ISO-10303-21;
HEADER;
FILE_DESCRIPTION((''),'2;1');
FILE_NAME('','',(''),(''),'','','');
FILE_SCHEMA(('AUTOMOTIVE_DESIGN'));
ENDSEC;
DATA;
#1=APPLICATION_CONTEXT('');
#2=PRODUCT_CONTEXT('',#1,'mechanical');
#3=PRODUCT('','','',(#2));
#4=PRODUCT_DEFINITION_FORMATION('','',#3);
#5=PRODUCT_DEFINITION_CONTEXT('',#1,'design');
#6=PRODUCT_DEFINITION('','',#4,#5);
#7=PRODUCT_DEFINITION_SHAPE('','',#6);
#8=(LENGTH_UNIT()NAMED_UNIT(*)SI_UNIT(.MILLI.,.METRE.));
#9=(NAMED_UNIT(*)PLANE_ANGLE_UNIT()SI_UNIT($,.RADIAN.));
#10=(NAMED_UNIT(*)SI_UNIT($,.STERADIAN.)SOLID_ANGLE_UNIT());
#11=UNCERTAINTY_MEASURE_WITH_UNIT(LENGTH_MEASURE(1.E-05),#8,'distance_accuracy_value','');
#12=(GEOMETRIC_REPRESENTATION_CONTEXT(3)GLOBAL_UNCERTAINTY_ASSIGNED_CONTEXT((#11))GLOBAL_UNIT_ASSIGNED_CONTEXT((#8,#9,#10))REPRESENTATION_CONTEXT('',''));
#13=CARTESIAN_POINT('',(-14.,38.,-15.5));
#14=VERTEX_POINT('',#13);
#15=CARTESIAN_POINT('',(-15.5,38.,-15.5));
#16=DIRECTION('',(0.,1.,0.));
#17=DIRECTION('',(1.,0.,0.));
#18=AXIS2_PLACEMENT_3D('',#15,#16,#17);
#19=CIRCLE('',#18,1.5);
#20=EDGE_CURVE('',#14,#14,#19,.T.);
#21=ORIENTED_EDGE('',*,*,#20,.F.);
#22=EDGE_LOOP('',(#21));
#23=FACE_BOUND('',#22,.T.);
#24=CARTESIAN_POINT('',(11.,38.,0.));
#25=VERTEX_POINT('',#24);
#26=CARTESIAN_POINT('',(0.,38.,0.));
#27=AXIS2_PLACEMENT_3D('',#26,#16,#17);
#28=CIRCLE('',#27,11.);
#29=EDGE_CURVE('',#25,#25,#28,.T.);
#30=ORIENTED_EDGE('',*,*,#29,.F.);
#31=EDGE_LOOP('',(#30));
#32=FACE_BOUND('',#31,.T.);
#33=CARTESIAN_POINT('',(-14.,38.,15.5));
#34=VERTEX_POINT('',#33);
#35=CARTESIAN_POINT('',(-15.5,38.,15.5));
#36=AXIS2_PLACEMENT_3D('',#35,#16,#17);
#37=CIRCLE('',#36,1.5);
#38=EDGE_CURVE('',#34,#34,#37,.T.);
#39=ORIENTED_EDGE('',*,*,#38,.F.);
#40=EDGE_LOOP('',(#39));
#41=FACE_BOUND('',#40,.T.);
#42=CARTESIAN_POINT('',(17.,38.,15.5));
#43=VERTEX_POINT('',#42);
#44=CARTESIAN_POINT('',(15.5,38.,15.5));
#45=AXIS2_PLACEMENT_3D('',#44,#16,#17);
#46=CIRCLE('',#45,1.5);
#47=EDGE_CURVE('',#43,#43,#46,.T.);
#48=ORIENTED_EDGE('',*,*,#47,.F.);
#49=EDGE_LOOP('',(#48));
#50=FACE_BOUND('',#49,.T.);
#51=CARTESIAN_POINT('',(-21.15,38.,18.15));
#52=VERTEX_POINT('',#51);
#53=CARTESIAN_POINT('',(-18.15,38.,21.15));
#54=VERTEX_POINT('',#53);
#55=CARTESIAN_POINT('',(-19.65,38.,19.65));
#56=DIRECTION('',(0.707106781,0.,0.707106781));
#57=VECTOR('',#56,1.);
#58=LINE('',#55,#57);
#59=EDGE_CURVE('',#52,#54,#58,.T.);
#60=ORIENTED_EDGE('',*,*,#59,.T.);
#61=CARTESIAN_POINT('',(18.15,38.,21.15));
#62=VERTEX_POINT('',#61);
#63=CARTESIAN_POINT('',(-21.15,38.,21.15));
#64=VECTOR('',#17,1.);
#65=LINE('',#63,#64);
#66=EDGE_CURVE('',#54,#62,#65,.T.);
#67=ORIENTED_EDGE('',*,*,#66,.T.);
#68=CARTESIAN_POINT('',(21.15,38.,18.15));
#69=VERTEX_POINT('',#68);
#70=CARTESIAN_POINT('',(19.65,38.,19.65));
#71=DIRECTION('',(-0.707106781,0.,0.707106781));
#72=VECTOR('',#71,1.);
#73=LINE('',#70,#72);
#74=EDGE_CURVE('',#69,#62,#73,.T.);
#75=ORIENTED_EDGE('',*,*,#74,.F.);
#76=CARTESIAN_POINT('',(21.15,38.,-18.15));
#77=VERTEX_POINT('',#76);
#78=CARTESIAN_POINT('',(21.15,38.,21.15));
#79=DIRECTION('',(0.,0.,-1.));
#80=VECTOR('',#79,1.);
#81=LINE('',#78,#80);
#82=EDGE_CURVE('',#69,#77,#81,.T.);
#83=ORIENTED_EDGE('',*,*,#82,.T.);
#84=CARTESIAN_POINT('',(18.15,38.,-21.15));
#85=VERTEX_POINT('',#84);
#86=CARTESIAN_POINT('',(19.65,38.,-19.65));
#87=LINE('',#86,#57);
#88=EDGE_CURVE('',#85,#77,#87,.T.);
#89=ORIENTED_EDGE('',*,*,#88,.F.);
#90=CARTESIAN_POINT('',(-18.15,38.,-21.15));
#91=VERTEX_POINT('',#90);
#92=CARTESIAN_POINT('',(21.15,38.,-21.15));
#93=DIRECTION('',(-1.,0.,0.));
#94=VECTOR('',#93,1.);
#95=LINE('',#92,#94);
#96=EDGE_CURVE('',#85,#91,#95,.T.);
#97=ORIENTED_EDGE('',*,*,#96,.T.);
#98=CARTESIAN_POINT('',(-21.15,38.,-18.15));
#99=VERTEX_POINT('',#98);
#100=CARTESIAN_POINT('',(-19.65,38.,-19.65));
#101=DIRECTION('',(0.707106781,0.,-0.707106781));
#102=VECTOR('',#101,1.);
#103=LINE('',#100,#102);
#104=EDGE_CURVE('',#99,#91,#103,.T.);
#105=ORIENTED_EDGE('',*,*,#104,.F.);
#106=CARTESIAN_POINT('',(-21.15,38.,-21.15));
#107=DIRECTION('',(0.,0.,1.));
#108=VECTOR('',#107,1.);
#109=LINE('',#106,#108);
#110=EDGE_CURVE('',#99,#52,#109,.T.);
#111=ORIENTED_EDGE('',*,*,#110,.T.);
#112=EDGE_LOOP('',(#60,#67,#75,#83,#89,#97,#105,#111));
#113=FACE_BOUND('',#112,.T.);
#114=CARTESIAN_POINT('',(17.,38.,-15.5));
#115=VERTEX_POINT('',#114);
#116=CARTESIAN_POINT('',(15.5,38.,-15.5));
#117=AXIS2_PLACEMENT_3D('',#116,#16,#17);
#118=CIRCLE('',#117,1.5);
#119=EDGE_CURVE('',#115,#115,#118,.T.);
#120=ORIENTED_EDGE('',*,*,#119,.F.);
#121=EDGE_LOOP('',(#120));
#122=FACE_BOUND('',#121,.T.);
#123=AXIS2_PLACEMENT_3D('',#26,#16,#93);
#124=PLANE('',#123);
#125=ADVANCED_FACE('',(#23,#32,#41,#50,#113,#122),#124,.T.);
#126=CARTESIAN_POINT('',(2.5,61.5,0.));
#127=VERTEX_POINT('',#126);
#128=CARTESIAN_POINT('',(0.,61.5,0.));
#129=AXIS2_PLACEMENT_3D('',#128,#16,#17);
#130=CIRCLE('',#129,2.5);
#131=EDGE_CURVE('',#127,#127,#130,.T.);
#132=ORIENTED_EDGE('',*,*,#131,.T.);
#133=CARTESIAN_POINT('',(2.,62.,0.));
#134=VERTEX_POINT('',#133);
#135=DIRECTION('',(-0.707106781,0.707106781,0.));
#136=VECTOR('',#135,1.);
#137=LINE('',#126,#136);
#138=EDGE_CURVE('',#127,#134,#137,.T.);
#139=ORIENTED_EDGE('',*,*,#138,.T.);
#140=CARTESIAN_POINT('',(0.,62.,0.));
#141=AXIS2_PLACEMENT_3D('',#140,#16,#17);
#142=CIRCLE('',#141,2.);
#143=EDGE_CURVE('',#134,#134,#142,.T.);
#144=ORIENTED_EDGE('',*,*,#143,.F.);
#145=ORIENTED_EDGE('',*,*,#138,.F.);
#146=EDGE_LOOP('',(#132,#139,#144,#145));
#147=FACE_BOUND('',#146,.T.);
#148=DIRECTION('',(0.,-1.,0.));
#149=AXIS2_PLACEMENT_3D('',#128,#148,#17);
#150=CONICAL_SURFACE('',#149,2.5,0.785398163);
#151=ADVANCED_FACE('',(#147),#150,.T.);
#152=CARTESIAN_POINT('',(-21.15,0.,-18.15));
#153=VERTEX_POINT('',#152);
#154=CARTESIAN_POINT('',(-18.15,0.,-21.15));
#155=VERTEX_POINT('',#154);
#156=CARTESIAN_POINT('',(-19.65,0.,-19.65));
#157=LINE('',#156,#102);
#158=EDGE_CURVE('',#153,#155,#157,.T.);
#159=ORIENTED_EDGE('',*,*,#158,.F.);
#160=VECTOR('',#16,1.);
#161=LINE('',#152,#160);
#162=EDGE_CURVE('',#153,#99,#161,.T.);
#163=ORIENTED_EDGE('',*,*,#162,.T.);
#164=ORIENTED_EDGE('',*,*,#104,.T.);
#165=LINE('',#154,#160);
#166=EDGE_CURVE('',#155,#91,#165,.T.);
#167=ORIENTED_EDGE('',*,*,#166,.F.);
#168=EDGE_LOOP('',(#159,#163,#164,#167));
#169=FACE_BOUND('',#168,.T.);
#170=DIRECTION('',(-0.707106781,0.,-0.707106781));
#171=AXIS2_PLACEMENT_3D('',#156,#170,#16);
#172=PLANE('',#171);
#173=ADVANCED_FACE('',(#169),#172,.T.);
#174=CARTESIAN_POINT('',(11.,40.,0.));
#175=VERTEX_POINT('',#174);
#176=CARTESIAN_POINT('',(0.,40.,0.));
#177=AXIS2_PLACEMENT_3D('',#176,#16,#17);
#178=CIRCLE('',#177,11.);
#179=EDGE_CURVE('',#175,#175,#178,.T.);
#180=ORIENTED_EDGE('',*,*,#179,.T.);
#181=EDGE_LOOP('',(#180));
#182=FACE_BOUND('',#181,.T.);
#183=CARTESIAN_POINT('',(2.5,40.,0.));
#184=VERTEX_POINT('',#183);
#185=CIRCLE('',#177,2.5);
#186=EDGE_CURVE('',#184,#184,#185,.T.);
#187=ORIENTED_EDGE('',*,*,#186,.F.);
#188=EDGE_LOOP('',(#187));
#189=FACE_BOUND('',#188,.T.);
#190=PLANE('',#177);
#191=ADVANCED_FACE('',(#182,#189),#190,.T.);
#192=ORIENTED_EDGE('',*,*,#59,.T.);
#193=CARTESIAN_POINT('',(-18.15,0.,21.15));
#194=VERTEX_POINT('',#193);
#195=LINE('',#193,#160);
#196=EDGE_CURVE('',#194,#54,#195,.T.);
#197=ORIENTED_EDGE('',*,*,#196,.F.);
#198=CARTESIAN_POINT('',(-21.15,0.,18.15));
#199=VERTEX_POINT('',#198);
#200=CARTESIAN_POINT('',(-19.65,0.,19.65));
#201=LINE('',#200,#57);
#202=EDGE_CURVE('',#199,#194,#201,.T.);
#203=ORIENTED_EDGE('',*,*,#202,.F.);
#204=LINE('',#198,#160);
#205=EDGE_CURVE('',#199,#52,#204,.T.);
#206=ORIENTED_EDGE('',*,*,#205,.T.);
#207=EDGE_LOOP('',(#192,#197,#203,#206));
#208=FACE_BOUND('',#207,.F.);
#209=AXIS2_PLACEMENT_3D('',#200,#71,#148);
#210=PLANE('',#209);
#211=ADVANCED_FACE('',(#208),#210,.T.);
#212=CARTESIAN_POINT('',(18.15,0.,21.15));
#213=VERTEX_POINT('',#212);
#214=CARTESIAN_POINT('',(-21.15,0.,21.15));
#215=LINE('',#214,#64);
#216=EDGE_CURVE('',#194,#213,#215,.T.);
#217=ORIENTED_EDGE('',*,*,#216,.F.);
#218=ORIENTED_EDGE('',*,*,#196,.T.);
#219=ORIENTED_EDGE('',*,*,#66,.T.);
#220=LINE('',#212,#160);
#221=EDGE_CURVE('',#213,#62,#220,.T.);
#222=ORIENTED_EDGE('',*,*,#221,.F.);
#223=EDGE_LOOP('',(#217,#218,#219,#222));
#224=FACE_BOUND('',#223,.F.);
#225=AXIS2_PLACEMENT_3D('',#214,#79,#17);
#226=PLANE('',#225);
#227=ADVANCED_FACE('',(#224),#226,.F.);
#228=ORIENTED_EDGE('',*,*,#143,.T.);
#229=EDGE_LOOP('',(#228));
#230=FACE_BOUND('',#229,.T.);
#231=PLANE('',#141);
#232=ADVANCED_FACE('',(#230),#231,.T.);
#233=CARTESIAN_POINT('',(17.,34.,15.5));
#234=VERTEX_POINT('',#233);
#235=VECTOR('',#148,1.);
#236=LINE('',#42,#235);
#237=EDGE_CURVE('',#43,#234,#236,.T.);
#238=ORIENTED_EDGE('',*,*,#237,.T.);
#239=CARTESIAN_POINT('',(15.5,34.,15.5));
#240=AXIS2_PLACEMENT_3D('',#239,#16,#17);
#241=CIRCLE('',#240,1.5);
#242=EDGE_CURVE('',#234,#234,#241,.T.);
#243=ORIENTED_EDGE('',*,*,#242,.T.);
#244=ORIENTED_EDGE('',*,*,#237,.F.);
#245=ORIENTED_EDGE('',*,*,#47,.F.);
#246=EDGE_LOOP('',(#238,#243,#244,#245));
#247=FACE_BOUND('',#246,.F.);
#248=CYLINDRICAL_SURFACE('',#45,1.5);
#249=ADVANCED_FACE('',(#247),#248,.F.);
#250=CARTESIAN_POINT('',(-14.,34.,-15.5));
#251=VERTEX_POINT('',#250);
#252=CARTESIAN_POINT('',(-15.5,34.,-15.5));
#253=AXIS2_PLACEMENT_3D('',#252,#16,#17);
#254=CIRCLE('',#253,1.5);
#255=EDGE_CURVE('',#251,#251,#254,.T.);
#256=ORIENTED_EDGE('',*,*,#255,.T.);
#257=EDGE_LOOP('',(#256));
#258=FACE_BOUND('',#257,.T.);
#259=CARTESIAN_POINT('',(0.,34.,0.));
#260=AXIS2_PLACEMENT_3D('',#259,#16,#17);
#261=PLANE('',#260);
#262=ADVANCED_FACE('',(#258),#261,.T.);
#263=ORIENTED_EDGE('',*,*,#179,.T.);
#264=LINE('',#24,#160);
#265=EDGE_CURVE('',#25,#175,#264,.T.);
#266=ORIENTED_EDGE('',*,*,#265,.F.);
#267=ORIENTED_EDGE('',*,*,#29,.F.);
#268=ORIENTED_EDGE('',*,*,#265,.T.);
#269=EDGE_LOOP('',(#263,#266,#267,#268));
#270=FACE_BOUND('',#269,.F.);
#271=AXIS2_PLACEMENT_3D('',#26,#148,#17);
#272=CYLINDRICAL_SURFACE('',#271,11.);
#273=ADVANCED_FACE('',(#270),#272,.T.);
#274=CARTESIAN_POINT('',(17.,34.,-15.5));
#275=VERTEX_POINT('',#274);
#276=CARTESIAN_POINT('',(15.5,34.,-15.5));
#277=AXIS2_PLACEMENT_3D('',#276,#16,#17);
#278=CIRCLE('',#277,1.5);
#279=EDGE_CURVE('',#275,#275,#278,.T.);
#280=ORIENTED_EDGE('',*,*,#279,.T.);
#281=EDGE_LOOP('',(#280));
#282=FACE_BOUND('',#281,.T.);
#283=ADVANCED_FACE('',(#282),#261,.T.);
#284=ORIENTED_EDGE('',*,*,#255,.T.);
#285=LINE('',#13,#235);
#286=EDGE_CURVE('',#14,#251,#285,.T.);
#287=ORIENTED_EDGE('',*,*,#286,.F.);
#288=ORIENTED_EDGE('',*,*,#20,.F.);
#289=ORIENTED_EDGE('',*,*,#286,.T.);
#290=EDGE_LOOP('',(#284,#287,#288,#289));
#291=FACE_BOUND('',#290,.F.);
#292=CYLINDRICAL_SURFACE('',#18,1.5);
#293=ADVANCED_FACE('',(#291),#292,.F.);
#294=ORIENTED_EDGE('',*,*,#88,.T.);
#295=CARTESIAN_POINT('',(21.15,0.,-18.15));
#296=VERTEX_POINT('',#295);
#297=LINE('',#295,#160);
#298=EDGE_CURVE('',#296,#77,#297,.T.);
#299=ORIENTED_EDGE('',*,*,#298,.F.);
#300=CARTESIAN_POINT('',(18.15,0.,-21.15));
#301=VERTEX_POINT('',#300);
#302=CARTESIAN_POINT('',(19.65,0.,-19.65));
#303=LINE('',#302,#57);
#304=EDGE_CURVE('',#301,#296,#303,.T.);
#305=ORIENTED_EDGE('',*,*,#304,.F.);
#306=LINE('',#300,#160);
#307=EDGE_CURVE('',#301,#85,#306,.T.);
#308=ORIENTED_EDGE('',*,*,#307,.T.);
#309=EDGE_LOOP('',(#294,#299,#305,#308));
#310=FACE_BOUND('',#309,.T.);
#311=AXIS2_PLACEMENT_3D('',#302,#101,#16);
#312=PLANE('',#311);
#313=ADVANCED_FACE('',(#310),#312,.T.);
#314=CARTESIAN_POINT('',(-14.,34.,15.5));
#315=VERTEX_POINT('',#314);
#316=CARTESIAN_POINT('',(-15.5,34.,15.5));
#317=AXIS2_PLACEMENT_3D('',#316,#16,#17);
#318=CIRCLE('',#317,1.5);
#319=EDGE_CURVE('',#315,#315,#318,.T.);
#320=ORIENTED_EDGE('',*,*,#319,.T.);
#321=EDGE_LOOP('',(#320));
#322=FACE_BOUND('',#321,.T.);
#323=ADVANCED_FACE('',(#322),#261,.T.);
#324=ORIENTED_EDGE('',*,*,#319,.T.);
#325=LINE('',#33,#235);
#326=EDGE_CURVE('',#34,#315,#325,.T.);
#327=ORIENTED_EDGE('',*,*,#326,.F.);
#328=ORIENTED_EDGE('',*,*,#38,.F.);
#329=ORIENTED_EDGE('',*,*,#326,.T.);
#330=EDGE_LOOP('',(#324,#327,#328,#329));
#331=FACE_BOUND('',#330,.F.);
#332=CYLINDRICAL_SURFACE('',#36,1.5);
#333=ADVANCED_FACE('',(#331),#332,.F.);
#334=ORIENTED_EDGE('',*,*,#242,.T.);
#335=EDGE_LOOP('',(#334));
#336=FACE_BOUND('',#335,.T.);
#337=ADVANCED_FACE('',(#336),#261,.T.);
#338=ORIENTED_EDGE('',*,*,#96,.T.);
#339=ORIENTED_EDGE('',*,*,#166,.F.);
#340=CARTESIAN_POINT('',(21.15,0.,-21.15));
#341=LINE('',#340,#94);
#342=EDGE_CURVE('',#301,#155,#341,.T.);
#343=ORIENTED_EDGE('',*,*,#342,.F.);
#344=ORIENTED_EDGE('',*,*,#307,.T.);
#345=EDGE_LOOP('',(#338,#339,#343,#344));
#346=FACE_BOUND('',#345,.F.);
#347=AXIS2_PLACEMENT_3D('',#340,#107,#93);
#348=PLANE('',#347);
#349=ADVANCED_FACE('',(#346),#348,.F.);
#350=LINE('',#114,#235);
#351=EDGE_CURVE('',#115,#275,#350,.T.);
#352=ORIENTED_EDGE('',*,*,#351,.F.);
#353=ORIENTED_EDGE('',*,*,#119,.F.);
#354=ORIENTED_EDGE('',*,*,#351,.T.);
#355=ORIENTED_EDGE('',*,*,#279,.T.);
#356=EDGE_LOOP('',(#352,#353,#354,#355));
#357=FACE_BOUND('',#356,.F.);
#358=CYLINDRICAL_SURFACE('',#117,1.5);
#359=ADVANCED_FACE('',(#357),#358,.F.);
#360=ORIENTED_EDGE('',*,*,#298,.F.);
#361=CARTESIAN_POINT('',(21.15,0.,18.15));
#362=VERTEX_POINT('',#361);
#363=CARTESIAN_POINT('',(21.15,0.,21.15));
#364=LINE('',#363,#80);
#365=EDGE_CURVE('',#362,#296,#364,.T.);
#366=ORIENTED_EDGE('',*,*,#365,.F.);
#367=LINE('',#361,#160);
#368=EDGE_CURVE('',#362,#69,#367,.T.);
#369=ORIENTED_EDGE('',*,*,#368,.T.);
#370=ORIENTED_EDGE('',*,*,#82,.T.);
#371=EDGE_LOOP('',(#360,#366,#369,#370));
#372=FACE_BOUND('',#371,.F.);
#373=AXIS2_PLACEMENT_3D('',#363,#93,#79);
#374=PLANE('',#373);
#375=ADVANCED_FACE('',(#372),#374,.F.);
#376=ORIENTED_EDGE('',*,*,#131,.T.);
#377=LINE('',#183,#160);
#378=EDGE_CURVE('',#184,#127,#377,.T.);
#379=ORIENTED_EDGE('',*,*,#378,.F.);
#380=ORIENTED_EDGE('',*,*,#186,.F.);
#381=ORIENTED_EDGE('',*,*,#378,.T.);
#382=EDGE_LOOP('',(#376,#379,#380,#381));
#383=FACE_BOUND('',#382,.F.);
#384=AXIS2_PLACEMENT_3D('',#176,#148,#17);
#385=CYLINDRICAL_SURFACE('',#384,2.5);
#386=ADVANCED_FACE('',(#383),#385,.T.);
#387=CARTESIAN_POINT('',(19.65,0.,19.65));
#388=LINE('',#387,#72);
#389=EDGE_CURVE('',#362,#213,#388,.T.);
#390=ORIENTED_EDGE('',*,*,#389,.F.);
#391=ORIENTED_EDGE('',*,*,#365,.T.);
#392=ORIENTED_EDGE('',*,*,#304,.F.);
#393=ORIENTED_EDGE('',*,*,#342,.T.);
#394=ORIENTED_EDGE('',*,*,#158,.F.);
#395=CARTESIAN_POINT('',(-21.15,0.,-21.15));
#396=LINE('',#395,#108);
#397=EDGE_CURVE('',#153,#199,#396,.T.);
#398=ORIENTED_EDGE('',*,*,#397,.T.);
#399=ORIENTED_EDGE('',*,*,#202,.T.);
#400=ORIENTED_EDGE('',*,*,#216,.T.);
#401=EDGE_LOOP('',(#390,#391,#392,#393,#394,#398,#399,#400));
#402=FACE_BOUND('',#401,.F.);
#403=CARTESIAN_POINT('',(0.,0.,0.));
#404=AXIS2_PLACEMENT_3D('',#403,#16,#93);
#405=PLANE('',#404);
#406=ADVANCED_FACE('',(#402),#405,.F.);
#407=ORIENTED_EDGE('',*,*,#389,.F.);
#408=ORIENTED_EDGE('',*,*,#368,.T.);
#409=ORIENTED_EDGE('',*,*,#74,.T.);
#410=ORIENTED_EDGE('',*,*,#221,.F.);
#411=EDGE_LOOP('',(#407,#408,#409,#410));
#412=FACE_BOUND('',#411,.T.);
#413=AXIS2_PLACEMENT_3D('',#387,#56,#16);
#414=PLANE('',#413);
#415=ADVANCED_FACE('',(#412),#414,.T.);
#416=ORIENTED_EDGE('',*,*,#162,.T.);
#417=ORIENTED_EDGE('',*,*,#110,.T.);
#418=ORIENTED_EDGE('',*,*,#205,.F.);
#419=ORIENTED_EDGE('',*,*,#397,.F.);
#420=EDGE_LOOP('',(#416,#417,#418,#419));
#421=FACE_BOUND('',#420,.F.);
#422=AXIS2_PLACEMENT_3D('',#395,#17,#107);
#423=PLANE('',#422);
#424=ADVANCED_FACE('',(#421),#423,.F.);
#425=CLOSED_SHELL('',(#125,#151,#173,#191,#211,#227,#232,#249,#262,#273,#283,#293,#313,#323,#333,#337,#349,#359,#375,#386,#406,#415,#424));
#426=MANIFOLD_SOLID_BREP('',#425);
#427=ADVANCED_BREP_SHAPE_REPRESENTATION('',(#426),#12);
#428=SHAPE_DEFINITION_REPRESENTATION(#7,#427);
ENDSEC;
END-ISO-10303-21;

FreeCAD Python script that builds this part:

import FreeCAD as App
import Part
import Sketcher
from FreeCAD import Vector
Q = App.Units.Quantity


def edges_at(feature, points):
    """Names of the edges that pass closest to the given points."""
    edges = feature.Shape.Edges
    near = lambda p: min(range(len(edges)), key=lambda i: edges[i].distToShape(Part.Vertex(*p))[0])
    return sorted({f"Edge{near(p) + 1}" for p in points})

doc = App.newDocument("Part")
body = doc.addObject("PartDesign::Body", "Body")

sketch1 = body.newObject("Sketcher::SketchObject", "Sketch")
sketch1.AttachmentSupport = (doc.getObject("XZ_Plane"), [""])
sketch1.MapMode = "FlatFace"
sketch1.addGeometry([
    Part.LineSegment(Vector(-21, -21, 0), Vector(-21, 21, 0)),
    Part.LineSegment(Vector(-21, 21, 0), Vector(21, 21, 0)),
    Part.LineSegment(Vector(21, 21, 0), Vector(21, -21, 0)),
    Part.LineSegment(Vector(21, -21, 0), Vector(-21, -21, 0)),
], False)
sketch1.addConstraint([
    Sketcher.Constraint("Coincident", 0, 2, 1, 1),
    Sketcher.Constraint("Coincident", 1, 2, 2, 1),
    Sketcher.Constraint("Coincident", 2, 2, 3, 1),
    Sketcher.Constraint("Coincident", 3, 2, 0, 1),
    Sketcher.Constraint("Vertical", 0),
    Sketcher.Constraint("Horizontal", 1),
    Sketcher.Constraint("Vertical", 2),
    Sketcher.Constraint("Horizontal", 3),
    Sketcher.Constraint("Symmetric", 0, 2, 2, 2, -1, 1),
    Sketcher.Constraint("Equal", 3, 0),
    Sketcher.Constraint("DistanceX", 1, 1, 1, 2, Q("42.3 mm")),
])
pad1 = body.newObject("PartDesign::Pad", "Pad")
pad1.Profile = sketch1
pad1.Length = 38
pad1.Reversed = True
doc.recompute()

chamfer = body.newObject("PartDesign::Chamfer", "Chamfer")
chamfer.Base = (pad1, edges_at(pad1, [
    (21.15, 19, 21.15),
    (21.15, 19, -21.15),
    (-21.15, 19, -21.15),
    (-21.15, 19, 21.15),
]))
chamfer.Size = 3

sketch2 = body.newObject("Sketcher::SketchObject", "Sketch001")
sketch2.AttachmentSupport = (doc.getObject("XZ_Plane"), [""])
sketch2.MapMode = "FlatFace"
sketch2.AttachmentOffset = App.Placement(Vector(0, 0, -38), App.Rotation())
sketch2.addGeometry(Part.Circle(Vector(0, 0, 0), Vector(0, 0, 1), 11), False)
sketch2.addConstraint([
    Sketcher.Constraint("Coincident", 0, 3, -1, 1),
    Sketcher.Constraint("Diameter", 0, Q("22 mm")),
])
pad2 = body.newObject("PartDesign::Pad", "Pad001")
pad2.Profile = sketch2
pad2.Length = 2
pad2.Reversed = True

sketch3 = body.newObject("Sketcher::SketchObject", "Sketch002")
sketch3.AttachmentSupport = (doc.getObject("XZ_Plane"), [""])
sketch3.MapMode = "FlatFace"
sketch3.AttachmentOffset = App.Placement(Vector(0, 0, -40), App.Rotation())
sketch3.addGeometry(Part.Circle(Vector(0, 0, 0), Vector(0, 0, 1), 2.5), False)
sketch3.addConstraint([
    Sketcher.Constraint("Coincident", 0, 3, -1, 1),
    Sketcher.Constraint("Diameter", 0, Q("5 mm")),
])
pad3 = body.newObject("PartDesign::Pad", "Pad002")
pad3.Profile = sketch3
pad3.Length = 22
pad3.Reversed = True
doc.recompute()

chamfer2 = body.newObject("PartDesign::Chamfer", "Chamfer001")
chamfer2.Base = (pad3, edges_at(pad3, [(-2.5, 62, 0)]))
chamfer2.Size = 0.5

sketch4 = body.newObject("Sketcher::SketchObject", "Sketch003")
sketch4.AttachmentSupport = (doc.getObject("XZ_Plane"), [""])
sketch4.MapMode = "FlatFace"
sketch4.AttachmentOffset = App.Placement(Vector(0, 0, -38), App.Rotation())
sketch4.addGeometry([
    Part.Circle(Vector(15.5, -15.5, 0), Vector(0, 0, 1), 1.5),
    Part.Circle(Vector(15.5, 15.5, 0), Vector(0, 0, 1), 1.5),
    Part.Circle(Vector(-15.5, 15.5, 0), Vector(0, 0, 1), 1.5),
    Part.Circle(Vector(-15.5, -15.5, 0), Vector(0, 0, 1), 1.5),
], False)
sketch4.addConstraint([
    Sketcher.Constraint("Equal", 0, 1),
    Sketcher.Constraint("Equal", 1, 2),
    Sketcher.Constraint("Equal", 2, 3),
    Sketcher.Constraint("Symmetric", 0, 3, 2, 3, -1, 1),
    Sketcher.Constraint("Symmetric", 1, 3, 3, 3, -1, 1),
    Sketcher.Constraint("Symmetric", 1, 3, 2, 3, -2),
    Sketcher.Constraint("Diameter", 0, Q("3 mm")),
    Sketcher.Constraint("DistanceY", 0, 3, 1, 3, Q("31 mm")),
    Sketcher.Constraint("DistanceX", 2, 3, 1, 3, Q("31 mm")),
])
pocket1 = body.newObject("PartDesign::Pocket", "Pocket")
pocket1.Profile = sketch4
pocket1.Length = 4
pocket1.Reversed = True

doc.recompute()
